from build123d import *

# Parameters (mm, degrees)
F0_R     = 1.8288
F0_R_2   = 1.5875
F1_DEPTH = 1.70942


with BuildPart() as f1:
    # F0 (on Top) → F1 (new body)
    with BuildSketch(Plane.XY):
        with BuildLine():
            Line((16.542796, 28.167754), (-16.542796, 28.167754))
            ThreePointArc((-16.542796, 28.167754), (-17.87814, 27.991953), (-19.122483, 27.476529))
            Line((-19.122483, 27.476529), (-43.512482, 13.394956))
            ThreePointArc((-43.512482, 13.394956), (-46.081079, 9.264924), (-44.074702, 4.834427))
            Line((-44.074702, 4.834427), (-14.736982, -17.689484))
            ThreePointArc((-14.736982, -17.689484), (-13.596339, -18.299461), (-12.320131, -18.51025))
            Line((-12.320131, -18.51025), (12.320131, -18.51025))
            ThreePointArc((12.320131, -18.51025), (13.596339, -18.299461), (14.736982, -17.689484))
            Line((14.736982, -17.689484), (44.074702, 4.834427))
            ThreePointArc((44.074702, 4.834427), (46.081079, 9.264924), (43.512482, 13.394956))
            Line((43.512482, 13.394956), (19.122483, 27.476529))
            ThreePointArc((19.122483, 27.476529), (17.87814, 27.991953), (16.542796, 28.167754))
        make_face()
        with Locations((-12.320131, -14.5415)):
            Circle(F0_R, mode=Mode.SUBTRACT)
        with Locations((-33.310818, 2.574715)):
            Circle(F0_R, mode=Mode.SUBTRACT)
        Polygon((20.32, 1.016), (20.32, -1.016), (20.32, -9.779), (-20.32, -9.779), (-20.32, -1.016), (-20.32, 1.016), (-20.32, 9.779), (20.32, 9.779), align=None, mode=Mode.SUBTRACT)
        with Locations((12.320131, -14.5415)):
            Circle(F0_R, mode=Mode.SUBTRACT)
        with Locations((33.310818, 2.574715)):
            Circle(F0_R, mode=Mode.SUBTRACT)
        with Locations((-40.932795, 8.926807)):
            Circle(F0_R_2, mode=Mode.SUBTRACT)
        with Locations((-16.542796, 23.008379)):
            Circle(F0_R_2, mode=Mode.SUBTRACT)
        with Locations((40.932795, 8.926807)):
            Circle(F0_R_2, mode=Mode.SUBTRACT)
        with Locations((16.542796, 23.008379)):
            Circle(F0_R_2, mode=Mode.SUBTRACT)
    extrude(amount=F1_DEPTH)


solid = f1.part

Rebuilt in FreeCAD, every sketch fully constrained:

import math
import FreeCAD as App
import Part
import Sketcher
Q = App.Units.Quantity


def add_polygon(sketch, points):
    """Adds a closed chain of lines whose ends are joined by coincident constraints."""
    first, n = sketch.GeometryCount, len(points)
    for a, b in zip(points, points[1:] + points[:1]):
        sketch.addGeometry(Part.LineSegment(App.Vector(*a, 0), App.Vector(*b, 0)), False)
    for i in range(n):
        sketch.addConstraint(Sketcher.Constraint("Coincident", first + i, 2, first + (i + 1) % n, 1))

doc = App.newDocument("Part")
params = doc.addObject("Spreadsheet::Sheet", "Params")
for row, (alias, value) in enumerate([
    ("sketch1_diameter", "0.144 in"),
    ("sketch1_diameter2", "0.125 in"),
    ("sketch1_width", "1.6 in"),
    ("sketch1_radius", "0.203125 in"),
    ("sketch1_height", "0.77 in"),
    ("pad1_length", "0.0673 in"),
], start=1):
    params.set(f"A{row}", alias)
    params.set(f"B{row}", "=" + value)
    params.setAlias(f"B{row}", alias)

body = doc.addObject("PartDesign::Body", "Body")

# Sketch on XY plane
sketch1 = doc.addObject("Sketcher::SketchObject", "Sketch")
body.addObject(sketch1)
sketch1.AttachmentSupport = (doc.XY_Plane, [""])
sketch1.MapMode = "FlatFace"
sketch1.addGeometry(Part.LineSegment(App.Vector(16.5, 28.2, 0), App.Vector(-16.5, 28.2, 0)), False)  # 0
sketch1.addGeometry(Part.ArcOfCircle(Part.Circle(App.Vector(-16.5, 23, 0), App.Vector(0, 0, 1), 5.2), math.radians(90), math.radians(120)), False)  # 1
sketch1.addGeometry(Part.LineSegment(App.Vector(-19.1, 27.5, 0), App.Vector(-43.5, 13.4, 0)), False)  # 2
sketch1.addGeometry(Part.ArcOfCircle(Part.Circle(App.Vector(-40.9, 8.9, 0), App.Vector(0, 0, 1), 5.2), math.radians(120), math.radians(232)), False)  # 3
sketch1.addGeometry(Part.LineSegment(App.Vector(-44.1, 4.8, 0), App.Vector(-14.7, -17.7, 0)), False)  # 4
sketch1.addGeometry(Part.ArcOfCircle(Part.Circle(App.Vector(-12.3, -14.5, 0), App.Vector(0, 0, 1), 4), math.radians(-128), math.radians(-90)), False)  # 5
sketch1.addGeometry(Part.LineSegment(App.Vector(-12.3, -18.5, 0), App.Vector(12.3, -18.5, 0)), False)  # 6
sketch1.addGeometry(Part.ArcOfCircle(Part.Circle(App.Vector(12.3, -14.5, 0), App.Vector(0, 0, 1), 4), math.radians(-90), math.radians(-52)), False)  # 7
sketch1.addGeometry(Part.LineSegment(App.Vector(14.7, -17.7, 0), App.Vector(44.1, 4.8, 0)), False)  # 8
sketch1.addGeometry(Part.ArcOfCircle(Part.Circle(App.Vector(40.9, 8.9, 0), App.Vector(0, 0, 1), 5.2), math.radians(-52), math.radians(60)), False)  # 9
sketch1.addGeometry(Part.LineSegment(App.Vector(43.5, 13.4, 0), App.Vector(19.1, 27.5, 0)), False)  # 10
sketch1.addGeometry(Part.ArcOfCircle(Part.Circle(App.Vector(16.5, 23, 0), App.Vector(0, 0, 1), 5.2), math.radians(60), math.radians(90)), False)  # 11
sketch1.addGeometry(Part.Circle(App.Vector(-12.3, -14.5, 0), App.Vector(0, 0, 1), 1.8), False)  # 12
sketch1.addGeometry(Part.Circle(App.Vector(-33.3, 2.6, 0), App.Vector(0, 0, 1), 1.8), False)  # 13
add_polygon(sketch1, [(20.3, 9.8), (20.3, -9.8), (-20.3, -9.8), (-20.3, 9.8)])  # lines 14-17
sketch1.addGeometry(Part.Circle(App.Vector(12.3, -14.5, 0), App.Vector(0, 0, 1), 1.8), False)  # 18
sketch1.addGeometry(Part.Circle(App.Vector(33.3, 2.6, 0), App.Vector(0, 0, 1), 1.8), False)  # 19
sketch1.addGeometry(Part.Circle(App.Vector(-40.9, 8.9, 0), App.Vector(0, 0, 1), 1.6), False)  # 20
sketch1.addGeometry(Part.Circle(App.Vector(-16.5, 23, 0), App.Vector(0, 0, 1), 1.6), False)  # 21
sketch1.addGeometry(Part.Circle(App.Vector(40.9, 8.9, 0), App.Vector(0, 0, 1), 1.6), False)  # 22
sketch1.addGeometry(Part.Circle(App.Vector(16.5, 23, 0), App.Vector(0, 0, 1), 1.6), False)  # 23
sketch1.addConstraint([
    Sketcher.Constraint("Tangent", 0, 2, 1, 1),
    Sketcher.Constraint("Tangent", 1, 2, 2, 1),
    Sketcher.Constraint("Tangent", 2, 2, 3, 1),
    Sketcher.Constraint("Tangent", 3, 2, 4, 1),
    Sketcher.Constraint("Tangent", 4, 2, 5, 1),
    Sketcher.Constraint("Tangent", 5, 2, 6, 1),
    Sketcher.Constraint("Tangent", 6, 2, 7, 1),
    Sketcher.Constraint("Tangent", 7, 2, 8, 1),
    Sketcher.Constraint("Tangent", 8, 2, 9, 1),
    Sketcher.Constraint("Tangent", 9, 2, 10, 1),
    Sketcher.Constraint("Tangent", 10, 2, 11, 1),
    Sketcher.Constraint("Tangent", 11, 2, 0, 1),
    Sketcher.Constraint("Horizontal", 0),
    Sketcher.Constraint("Horizontal", 6),
    Sketcher.Constraint("Vertical", 14),
    Sketcher.Constraint("Horizontal", 15),
    Sketcher.Constraint("Vertical", 16),
    Sketcher.Constraint("Horizontal", 17),
    Sketcher.Constraint("Coincident", 12, 3, 5, 3),
    Sketcher.Constraint("Coincident", 18, 3, 7, 3),
    Sketcher.Constraint("Coincident", 20, 3, 3, 3),
    Sketcher.Constraint("Coincident", 21, 3, 1, 3),
    Sketcher.Constraint("Coincident", 22, 3, 9, 3),
    Sketcher.Constraint("Coincident", 23, 3, 11, 3),
    Sketcher.Constraint("Equal", 5, 7),
    Sketcher.Constraint("Equal", 3, 9),
    Sketcher.Constraint("Equal", 1, 11),
    Sketcher.Constraint("Equal", 12, 13),
    Sketcher.Constraint("Equal", 13, 18),
    Sketcher.Constraint("Equal", 18, 19),
    Sketcher.Constraint("Equal", 20, 21),
    Sketcher.Constraint("Equal", 21, 22),
    Sketcher.Constraint("Equal", 22, 23),
    Sketcher.Constraint("Symmetric", 14, 2, 16, 2, -1, 1),
    Sketcher.Constraint("Symmetric", 3, 3, 9, 3, -2),
    Sketcher.Constraint("Symmetric", 13, 3, 19, 3, -2),
    Sketcher.Constraint("Horizontal", 4, 2, 7, 2),
    Sketcher.Constraint("Horizontal", 2, 2, 9, 2),
    Sketcher.Constraint("Diameter", 12, Q("0.144 in")),
    Sketcher.Constraint("Diameter", 20, Q("0.125 in")),
    Sketcher.Constraint("DistanceX", 15, 2, 15, 1, Q("1.6 in")),
    Sketcher.Constraint("Angle", 2, Q("-149.999999 deg")),
    Sketcher.Constraint("Radius", 3, Q("0.203125 in")),
    Sketcher.Constraint("DistanceY", 14, 2, 14, 1, Q("0.77 in")),
    Sketcher.Constraint("Radius", 5, 3.968742),
    Sketcher.Constraint("DistanceY", 21, 3, 0, 2, Q("0.203125 in")),
    Sketcher.Constraint("DistanceY", 18, 3, 14, 2, Q("0.1875 in")),
    Sketcher.Constraint("DistanceY", 13, 3, 0, 2, Q("1.0076 in")),
    Sketcher.Constraint("DistanceX", 0, 2, 0, 1, 33.085592),
    Sketcher.Constraint("DistanceX", 6, 1, 6, 2, 24.640262),
    Sketcher.Constraint("DistanceX", 3, 2, -1, 1, 44.074702),
    Sketcher.Constraint("DistanceX", 20, 3, 21, 3, 24.389999),
    Sketcher.Constraint("DistanceX", 13, 3, 1, 3, 16.76802),
])
sketch1.setExpression("Constraints[42]", "Params.sketch1_diameter")
sketch1.setExpression("Constraints[43]", "Params.sketch1_diameter2")
sketch1.setExpression("Constraints[44]", "Params.sketch1_width")
sketch1.setExpression("Constraints[46]", "Params.sketch1_radius")
sketch1.setExpression("Constraints[47]", "Params.sketch1_height")
pad1 = doc.addObject("PartDesign::Pad", "Pad")
body.addObject(pad1)
pad1.Profile = sketch1
pad1.setExpression("Length", "Params.pad1_length")

doc.recompute()
